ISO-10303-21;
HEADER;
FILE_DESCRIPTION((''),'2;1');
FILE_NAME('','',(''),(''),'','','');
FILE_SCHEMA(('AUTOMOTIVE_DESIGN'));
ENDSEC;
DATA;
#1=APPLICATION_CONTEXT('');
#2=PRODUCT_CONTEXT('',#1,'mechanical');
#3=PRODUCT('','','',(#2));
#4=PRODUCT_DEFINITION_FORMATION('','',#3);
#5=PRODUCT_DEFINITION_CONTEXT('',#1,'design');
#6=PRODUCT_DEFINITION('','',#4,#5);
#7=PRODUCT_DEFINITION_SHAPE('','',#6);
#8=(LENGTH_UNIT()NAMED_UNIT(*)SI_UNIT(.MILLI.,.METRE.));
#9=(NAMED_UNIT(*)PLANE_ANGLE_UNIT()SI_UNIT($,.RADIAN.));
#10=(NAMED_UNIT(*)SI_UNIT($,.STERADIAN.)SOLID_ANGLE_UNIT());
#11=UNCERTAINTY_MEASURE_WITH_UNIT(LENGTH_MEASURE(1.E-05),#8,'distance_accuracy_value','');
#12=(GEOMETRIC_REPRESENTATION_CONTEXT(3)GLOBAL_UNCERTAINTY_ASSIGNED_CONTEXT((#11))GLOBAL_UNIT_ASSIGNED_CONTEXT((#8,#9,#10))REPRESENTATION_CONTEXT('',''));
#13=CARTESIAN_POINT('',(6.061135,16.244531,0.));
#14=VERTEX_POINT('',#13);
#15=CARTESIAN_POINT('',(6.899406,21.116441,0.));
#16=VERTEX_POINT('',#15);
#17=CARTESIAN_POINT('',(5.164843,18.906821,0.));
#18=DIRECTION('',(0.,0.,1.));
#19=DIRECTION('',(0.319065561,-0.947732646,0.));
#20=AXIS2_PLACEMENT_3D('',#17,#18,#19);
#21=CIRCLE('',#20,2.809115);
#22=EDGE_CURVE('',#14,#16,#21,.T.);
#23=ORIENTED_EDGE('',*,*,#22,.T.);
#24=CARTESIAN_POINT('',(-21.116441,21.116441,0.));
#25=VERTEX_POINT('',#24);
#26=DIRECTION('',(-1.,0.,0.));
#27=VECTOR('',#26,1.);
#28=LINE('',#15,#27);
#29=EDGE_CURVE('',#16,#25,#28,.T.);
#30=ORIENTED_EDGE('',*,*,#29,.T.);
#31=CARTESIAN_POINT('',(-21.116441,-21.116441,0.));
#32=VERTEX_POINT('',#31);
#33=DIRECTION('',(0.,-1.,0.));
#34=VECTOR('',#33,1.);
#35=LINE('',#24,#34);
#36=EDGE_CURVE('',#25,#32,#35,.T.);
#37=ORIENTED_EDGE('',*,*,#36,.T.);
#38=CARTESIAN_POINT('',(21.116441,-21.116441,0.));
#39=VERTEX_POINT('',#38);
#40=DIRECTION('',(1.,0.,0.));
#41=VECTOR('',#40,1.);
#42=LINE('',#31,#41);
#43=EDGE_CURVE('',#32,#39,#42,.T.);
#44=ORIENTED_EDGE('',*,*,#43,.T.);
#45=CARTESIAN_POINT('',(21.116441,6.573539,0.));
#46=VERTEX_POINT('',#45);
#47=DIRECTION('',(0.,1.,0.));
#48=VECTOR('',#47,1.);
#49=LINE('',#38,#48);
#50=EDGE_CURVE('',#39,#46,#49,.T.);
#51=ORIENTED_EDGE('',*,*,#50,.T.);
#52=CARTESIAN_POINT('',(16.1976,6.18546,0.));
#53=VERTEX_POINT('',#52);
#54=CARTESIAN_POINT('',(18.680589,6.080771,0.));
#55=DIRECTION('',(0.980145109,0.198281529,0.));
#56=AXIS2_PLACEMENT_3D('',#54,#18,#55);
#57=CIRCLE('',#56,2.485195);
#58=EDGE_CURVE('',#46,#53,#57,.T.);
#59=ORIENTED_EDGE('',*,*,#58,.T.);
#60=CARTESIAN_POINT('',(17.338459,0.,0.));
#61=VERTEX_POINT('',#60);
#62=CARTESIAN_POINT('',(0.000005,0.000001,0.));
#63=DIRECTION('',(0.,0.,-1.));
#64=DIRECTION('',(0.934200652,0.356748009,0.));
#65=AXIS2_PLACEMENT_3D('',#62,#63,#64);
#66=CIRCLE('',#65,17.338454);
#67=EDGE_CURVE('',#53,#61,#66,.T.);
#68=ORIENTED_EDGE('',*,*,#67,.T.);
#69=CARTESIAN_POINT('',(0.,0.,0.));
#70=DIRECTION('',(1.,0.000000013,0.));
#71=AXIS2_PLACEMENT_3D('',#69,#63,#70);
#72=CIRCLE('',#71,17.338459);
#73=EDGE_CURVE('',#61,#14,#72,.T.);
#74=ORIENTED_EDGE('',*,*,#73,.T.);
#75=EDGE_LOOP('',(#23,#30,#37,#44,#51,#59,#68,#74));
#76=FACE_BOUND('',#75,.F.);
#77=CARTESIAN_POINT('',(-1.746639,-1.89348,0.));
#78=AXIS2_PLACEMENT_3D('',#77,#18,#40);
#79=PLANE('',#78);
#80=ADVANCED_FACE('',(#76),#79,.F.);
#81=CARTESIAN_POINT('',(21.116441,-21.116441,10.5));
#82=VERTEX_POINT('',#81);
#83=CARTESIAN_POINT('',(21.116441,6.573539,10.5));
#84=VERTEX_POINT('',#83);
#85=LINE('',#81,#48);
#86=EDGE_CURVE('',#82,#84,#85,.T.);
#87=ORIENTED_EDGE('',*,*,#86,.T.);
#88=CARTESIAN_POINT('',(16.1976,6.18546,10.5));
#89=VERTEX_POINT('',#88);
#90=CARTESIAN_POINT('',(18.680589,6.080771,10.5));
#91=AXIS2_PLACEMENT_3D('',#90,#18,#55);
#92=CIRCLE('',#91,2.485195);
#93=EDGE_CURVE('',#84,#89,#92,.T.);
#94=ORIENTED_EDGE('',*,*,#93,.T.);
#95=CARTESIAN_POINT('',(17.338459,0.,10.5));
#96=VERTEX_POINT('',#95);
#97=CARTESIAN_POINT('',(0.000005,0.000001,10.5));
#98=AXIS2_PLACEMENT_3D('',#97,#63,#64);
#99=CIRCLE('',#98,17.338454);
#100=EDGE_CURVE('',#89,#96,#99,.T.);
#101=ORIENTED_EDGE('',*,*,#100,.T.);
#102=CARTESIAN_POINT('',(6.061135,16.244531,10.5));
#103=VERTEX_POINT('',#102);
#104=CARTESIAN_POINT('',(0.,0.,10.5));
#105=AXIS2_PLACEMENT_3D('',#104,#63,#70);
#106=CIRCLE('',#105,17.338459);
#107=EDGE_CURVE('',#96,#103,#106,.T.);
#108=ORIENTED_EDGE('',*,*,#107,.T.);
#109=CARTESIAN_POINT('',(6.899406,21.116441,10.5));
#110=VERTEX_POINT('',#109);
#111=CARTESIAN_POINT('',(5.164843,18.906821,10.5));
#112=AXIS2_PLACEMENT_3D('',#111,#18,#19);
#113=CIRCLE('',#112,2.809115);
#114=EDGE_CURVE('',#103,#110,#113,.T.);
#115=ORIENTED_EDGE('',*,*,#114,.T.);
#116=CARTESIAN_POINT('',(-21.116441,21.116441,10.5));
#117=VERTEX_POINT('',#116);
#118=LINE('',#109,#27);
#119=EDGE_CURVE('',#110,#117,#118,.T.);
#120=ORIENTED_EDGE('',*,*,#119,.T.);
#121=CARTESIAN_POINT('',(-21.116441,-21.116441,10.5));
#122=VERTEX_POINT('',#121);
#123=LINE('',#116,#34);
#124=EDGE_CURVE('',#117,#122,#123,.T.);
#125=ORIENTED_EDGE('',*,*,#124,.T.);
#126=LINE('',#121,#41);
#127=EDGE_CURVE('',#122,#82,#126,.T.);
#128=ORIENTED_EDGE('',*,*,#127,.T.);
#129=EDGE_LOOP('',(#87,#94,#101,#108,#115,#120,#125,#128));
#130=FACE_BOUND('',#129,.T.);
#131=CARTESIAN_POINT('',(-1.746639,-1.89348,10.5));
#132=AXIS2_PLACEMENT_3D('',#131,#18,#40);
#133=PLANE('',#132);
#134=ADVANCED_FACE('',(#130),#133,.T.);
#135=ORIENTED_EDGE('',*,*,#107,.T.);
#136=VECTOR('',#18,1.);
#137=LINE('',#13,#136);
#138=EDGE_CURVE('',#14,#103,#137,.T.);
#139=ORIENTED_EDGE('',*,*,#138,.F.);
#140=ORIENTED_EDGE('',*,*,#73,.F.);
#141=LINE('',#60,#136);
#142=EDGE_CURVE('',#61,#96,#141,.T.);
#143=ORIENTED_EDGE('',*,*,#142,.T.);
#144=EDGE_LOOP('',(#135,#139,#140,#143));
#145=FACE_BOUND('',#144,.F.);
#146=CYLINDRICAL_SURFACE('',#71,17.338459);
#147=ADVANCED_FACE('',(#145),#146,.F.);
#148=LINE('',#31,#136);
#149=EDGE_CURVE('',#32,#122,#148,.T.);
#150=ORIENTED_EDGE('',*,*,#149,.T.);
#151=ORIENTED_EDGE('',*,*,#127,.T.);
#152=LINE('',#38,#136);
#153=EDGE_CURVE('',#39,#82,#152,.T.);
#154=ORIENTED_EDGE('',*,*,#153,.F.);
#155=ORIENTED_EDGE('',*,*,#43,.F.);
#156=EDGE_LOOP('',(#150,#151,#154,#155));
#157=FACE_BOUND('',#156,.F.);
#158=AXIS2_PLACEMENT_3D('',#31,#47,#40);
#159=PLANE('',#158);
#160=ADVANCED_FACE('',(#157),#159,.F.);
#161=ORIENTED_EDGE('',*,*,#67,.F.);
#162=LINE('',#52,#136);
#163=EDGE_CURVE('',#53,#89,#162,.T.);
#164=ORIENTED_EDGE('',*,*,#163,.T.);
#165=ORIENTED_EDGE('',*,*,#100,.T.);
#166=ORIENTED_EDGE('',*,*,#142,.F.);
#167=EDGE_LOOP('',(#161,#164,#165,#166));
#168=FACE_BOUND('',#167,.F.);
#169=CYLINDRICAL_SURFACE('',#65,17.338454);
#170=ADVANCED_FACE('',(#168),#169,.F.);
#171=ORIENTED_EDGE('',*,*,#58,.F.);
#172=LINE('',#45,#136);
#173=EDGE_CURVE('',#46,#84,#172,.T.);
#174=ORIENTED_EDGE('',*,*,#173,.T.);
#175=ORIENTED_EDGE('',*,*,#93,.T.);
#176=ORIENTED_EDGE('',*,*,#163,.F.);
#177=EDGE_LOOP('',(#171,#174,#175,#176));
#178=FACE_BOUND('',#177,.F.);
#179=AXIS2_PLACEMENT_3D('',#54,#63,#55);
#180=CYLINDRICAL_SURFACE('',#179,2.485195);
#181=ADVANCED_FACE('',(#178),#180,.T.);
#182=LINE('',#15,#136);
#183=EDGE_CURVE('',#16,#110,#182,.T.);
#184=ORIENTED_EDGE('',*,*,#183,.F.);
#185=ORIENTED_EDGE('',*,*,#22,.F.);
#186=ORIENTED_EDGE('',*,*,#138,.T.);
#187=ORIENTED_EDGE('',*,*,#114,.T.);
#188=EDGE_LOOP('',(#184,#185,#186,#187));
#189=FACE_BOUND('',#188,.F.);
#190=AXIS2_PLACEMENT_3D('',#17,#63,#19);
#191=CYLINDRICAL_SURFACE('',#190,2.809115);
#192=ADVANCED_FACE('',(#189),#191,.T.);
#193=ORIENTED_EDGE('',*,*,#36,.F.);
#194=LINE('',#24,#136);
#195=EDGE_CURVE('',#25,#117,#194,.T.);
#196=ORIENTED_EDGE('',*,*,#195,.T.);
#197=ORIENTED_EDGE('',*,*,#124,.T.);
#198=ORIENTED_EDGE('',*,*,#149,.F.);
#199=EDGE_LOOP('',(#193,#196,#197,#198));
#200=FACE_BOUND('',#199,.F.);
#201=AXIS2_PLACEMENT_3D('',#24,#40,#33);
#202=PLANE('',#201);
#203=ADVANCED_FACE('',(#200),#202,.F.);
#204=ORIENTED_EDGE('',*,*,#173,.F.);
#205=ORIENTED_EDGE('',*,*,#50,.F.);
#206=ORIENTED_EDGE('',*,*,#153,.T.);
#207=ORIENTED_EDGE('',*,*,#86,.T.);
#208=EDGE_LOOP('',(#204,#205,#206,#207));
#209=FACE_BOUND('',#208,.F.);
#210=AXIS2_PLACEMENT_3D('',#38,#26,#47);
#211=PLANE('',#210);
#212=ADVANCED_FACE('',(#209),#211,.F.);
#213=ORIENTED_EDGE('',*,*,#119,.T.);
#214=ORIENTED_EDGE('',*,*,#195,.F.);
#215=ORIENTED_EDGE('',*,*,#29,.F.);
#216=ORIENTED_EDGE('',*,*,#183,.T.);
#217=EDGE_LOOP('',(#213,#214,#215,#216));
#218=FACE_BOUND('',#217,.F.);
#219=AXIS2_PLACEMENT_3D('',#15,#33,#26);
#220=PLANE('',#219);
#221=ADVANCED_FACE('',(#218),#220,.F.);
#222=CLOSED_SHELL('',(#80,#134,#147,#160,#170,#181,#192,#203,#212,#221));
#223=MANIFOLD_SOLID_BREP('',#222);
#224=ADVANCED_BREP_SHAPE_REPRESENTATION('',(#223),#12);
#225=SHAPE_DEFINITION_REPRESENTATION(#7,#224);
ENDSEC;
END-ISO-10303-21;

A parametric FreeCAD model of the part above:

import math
import FreeCAD as App
import Part
import Sketcher
from FreeCAD import Vector

doc = App.newDocument("Part")
body = doc.addObject("PartDesign::Body", "Body")

# Sketch on XY plane
sketch1 = body.newObject("Sketcher::SketchObject", "Sketch")
sketch1.AttachmentSupport = (doc.getObject("XY_Plane"), [""])
sketch1.MapMode = "FlatFace"
sketch1.addGeometry([
    Part.ArcOfCircle(Part.Circle(Vector(5.164843, 18.906821, 0), Vector(0, 0, 1), 2.809115), math.radians(-71.393577), math.radians(51.867904)),  # 0
    Part.LineSegment(Vector(6.899406, 21.116441, 0), Vector(-21.116441, 21.116441, 0)),  # 1
    Part.LineSegment(Vector(-21.116441, 21.116441, 0), Vector(-21.116441, -21.116441, 0)),  # 2
    Part.LineSegment(Vector(-21.116441, -21.116441, 0), Vector(21.116441, -21.116441, 0)),  # 3
    Part.LineSegment(Vector(21.116441, -21.116441, 0), Vector(21.116441, 6.573539, 0)),  # 4
    Part.ArcOfCircle(Part.Circle(Vector(18.680589, 6.080771, 0), Vector(0, 0, 1), 2.485195), math.radians(11.436486), math.radians(177.585691)),  # 5
    Part.ArcOfCircle(Part.Circle(Vector(0.000005, 0.000001, 0), Vector(0, 0, 1), 17.338454), math.radians(-0.000003), math.radians(20.900614)),  # 6
    Part.ArcOfCircle(Part.Circle(Vector(0, 0, 0), Vector(0, 0, 1), 17.338459), math.radians(69.538526), math.radians(360.000001)),  # 7
], False)
sketch1.addConstraint([
    Sketcher.Constraint("Coincident", 0, 2, 1, 1),
    Sketcher.Constraint("Coincident", 1, 2, 2, 1),
    Sketcher.Constraint("Coincident", 2, 2, 3, 1),
    Sketcher.Constraint("Coincident", 3, 2, 4, 1),
    Sketcher.Constraint("Coincident", 4, 2, 5, 1),
    Sketcher.Constraint("Coincident", 5, 2, 6, 2),
    Sketcher.Constraint("Tangent", 6, 1, 7, 2),
    Sketcher.Constraint("Coincident", 7, 1, 0, 1),
    Sketcher.Constraint("Horizontal", 1),
    Sketcher.Constraint("Vertical", 2),
    Sketcher.Constraint("Horizontal", 3),
    Sketcher.Constraint("Vertical", 4),
    Sketcher.Constraint("Coincident", 6, 3, -1, 1),
    Sketcher.Constraint("Symmetric", 1, 2, 3, 2, -1, 1),
    Sketcher.Constraint("PointOnObject", 6, 1, -1),
    Sketcher.Constraint("Equal", 3, 2),
    Sketcher.Constraint("Radius", 7, 17.338459),
    Sketcher.Constraint("Radius", 0, 2.809115),
    Sketcher.Constraint("Radius", 5, 2.485195),
    Sketcher.Constraint("Radius", 6, 17.338454),
    Sketcher.Constraint("DistanceX", 3, 1, 3, 2, 42.232882),
    Sketcher.Constraint("DistanceY", 4, 1, 4, 2, 27.68998),
    Sketcher.Constraint("DistanceX", -1, 1, 5, 2, 16.1976),
    Sketcher.Constraint("DistanceX", 6, 3, 0, 2, 6.899401),
    Sketcher.Constraint("DistanceY", -1, 1, 0, 3, 18.906821),
])
pad1 = body.newObject("PartDesign::Pad", "Pad")
pad1.Profile = sketch1
pad1.Length = 10.5

doc.recompute()
